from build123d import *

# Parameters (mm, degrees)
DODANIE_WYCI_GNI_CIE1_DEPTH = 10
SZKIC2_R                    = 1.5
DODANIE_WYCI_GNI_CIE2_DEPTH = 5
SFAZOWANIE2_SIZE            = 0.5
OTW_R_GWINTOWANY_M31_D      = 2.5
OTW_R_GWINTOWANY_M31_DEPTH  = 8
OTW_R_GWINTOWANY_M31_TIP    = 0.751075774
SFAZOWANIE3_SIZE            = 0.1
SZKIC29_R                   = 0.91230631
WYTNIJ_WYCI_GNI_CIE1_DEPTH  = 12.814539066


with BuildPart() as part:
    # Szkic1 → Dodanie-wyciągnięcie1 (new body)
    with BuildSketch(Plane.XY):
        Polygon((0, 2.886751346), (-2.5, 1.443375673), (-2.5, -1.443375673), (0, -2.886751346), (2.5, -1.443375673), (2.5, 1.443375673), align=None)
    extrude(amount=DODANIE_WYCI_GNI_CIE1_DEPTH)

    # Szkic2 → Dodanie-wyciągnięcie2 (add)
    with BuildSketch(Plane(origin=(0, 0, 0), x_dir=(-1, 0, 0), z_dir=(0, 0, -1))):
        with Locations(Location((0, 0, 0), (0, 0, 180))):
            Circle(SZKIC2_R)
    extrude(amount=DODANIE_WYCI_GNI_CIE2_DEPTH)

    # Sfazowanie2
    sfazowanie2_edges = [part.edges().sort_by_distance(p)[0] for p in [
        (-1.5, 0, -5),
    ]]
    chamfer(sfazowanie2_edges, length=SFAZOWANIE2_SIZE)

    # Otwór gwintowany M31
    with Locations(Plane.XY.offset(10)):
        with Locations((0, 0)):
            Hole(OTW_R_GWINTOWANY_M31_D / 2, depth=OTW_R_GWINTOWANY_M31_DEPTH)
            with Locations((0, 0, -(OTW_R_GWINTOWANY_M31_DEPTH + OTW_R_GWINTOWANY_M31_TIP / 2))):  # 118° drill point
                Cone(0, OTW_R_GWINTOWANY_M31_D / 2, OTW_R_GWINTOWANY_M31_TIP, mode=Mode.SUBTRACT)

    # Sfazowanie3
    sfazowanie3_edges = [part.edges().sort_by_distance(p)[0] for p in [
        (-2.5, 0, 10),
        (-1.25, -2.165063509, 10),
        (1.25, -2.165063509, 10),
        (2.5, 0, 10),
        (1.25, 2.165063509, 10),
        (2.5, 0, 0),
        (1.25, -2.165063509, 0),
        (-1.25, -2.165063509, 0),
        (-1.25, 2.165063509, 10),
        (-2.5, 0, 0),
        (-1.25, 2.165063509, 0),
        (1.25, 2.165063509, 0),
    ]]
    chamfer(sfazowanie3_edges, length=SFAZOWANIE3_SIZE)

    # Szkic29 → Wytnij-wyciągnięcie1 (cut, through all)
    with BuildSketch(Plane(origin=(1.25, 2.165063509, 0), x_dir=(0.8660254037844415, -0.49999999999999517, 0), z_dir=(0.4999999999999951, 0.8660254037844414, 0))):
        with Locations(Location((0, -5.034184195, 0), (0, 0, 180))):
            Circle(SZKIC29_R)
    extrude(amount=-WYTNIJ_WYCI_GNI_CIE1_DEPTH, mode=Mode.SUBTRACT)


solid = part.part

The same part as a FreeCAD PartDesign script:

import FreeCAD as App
import Part
import Sketcher
from FreeCAD import Vector
Q = App.Units.Quantity


def edges_at(feature, points):
    """Names of the edges that pass closest to the given points."""
    edges = feature.Shape.Edges
    near = lambda p: min(range(len(edges)), key=lambda i: edges[i].distToShape(Part.Vertex(*p))[0])
    return sorted({f"Edge{near(p) + 1}" for p in points})

doc = App.newDocument("Part")
params = doc.addObject("Spreadsheet::Sheet", "Params")
for row, (alias, value) in enumerate([
    ("pad1_length", "10 mm"),
    ("sketch2_diameter", "3 mm"),
    ("pad2_length", "5 mm"),
    ("chamfer_size", "0.5 mm"),
    ("sketch3_diameter", "2.5 mm"),
    ("hole_diameter", "2.5 mm"),
    ("hole_depth", "8 mm"),
    ("chamfer2_size", "0.1 mm"),
], start=1):
    params.set(f"A{row}", alias)
    params.set(f"B{row}", "=" + value)
    params.setAlias(f"B{row}", alias)

body = doc.addObject("PartDesign::Body", "Body")

# Sketch on XY plane
sketch1 = body.newObject("Sketcher::SketchObject", "Sketch")
sketch1.AttachmentSupport = (doc.getObject("XY_Plane"), [""])
sketch1.MapMode = "FlatFace"
sketch1.addGeometry(Part.LineSegment(Vector(0, 2.886751, 0), Vector(-2.5, 1.443376, 0)), False)
sketch1.addGeometry(Part.LineSegment(Vector(-2.5, 1.443376, 0), Vector(-2.5, -1.443376, 0)), False)
sketch1.addGeometry(Part.LineSegment(Vector(-2.5, -1.443376, 0), Vector(0, -2.886751, 0)), False)
sketch1.addGeometry(Part.LineSegment(Vector(0, -2.886751, 0), Vector(2.5, -1.443376, 0)), False)
sketch1.addGeometry(Part.LineSegment(Vector(2.5, -1.443376, 0), Vector(2.5, 1.443376, 0)), False)
sketch1.addGeometry(Part.LineSegment(Vector(2.5, 1.443376, 0), Vector(0, 2.886751, 0)), False)
sketch1.addConstraint(Sketcher.Constraint("Coincident", 0, 2, 1, 1))
sketch1.addConstraint(Sketcher.Constraint("Coincident", 1, 2, 2, 1))
sketch1.addConstraint(Sketcher.Constraint("Coincident", 2, 2, 3, 1))
sketch1.addConstraint(Sketcher.Constraint("Coincident", 3, 2, 4, 1))
sketch1.addConstraint(Sketcher.Constraint("Coincident", 4, 2, 5, 1))
sketch1.addConstraint(Sketcher.Constraint("Coincident", 5, 2, 0, 1))
sketch1.addConstraint(Sketcher.Constraint("Vertical", 1))
sketch1.addConstraint(Sketcher.Constraint("Vertical", 4))
sketch1.addConstraint(Sketcher.Constraint("Symmetric", 0, 2, 3, 2, -1, 1))
sketch1.addConstraint(Sketcher.Constraint("Symmetric", 2, 2, 5, 2, -1, 1))
sketch1.addConstraint(Sketcher.Constraint("PointOnObject", 2, 2, -2))
sketch1.addConstraint(Sketcher.Constraint("Parallel", 2, 5))
sketch1.addConstraint(Sketcher.Constraint("Horizontal", 1, 2, 3, 2))
sketch1.addConstraint(Sketcher.Constraint("Angle", 0, Q("-150 deg")))
sketch1.addConstraint(Sketcher.Constraint("DistanceX", 1, 2, 3, 2, 5.0))
sketch1.addConstraint(Sketcher.Constraint("DistanceY", 1, 2, 1, 1, 2.886751))
pad1 = body.newObject("PartDesign::Pad", "Pad")
pad1.Profile = sketch1
pad1.setExpression("Length", "Params.pad1_length")

# Sketch on XY plane
sketch2 = body.newObject("Sketcher::SketchObject", "Sketch001")
sketch2.AttachmentSupport = (doc.getObject("XY_Plane"), [""])
sketch2.MapMode = "FlatFace"
sketch2.addGeometry(Part.Circle(Vector(0, 0, 0), Vector(0, 0, 1), 1.5), False)
sketch2.addConstraint(Sketcher.Constraint("Coincident", 0, 3, -1, 1))
sketch2.addConstraint(Sketcher.Constraint("Diameter", 0, 3.0))
sketch2.setExpression("Constraints[1]", "Params.sketch2_diameter")
pad2 = body.newObject("PartDesign::Pad", "Pad001")
pad2.Profile = sketch2
pad2.setExpression("Length", "Params.pad2_length")
pad2.Reversed = True
doc.recompute()

chamfer = body.newObject("PartDesign::Chamfer", "Chamfer")
chamfer.Base = (pad2, edges_at(pad2, [(-1.5, 0, -5)]))
chamfer.setExpression("Size", "Params.chamfer_size")

# Sketch on XY plane
sketch3 = body.newObject("Sketcher::SketchObject", "Sketch002")
sketch3.AttachmentSupport = (doc.getObject("XY_Plane"), [""])
sketch3.MapMode = "FlatFace"
sketch3.AttachmentOffset = App.Placement(Vector(0, 0, 10), App.Rotation())
sketch3.addGeometry(Part.Circle(Vector(0, 0, 0), Vector(0, 0, 1), 1.25), False)
sketch3.addConstraint(Sketcher.Constraint("Coincident", 0, 3, -1, 1))
sketch3.addConstraint(Sketcher.Constraint("Diameter", 0, 2.5))
sketch3.setExpression("Constraints[1]", "Params.sketch3_diameter")
doc.recompute()
hole = body.newObject("PartDesign::Hole", "Hole")
hole.Profile = sketch3
hole.ThreadType = "None"
hole.setExpression("Diameter", "Params.hole_diameter")
hole.DepthType = "Dimension"
hole.setExpression("Depth", "Params.hole_depth")
hole.DrillPoint = "Angled"
hole.DrillPointAngle = 118
doc.recompute()

chamfer2 = body.newObject("PartDesign::Chamfer", "Chamfer001")
chamfer2.Base = (hole, edges_at(hole, [
    (-2.5, 0, 10),
    (-1.25, -2.165, 10),
    (1.25, -2.165, 10),
    (2.5, 0, 10),
    (1.25, 2.165, 10),
    (2.5, 0, 0),
    (1.25, -2.165, 0),
    (-1.25, -2.165, 0),
    (-1.25, 2.165, 10),
    (-2.5, 0, 0),
    (-1.25, 2.165, 0),
    (1.25, 2.165, 0),
]))
chamfer2.setExpression("Size", "Params.chamfer2_size")

# Sketch on an angled plane
sketch4 = body.newObject("Sketcher::SketchObject", "Sketch003")
sketch4.Placement = App.Placement(Vector(1.25, 2.165064, 0), App.Rotation(Vector(0.866025404, -0.5, 0), Vector(0, 0, -1), Vector(0.5, 0.866025404, 0), "ZXY"))
sketch4.addGeometry(Part.Circle(Vector(0, -5.034184, 0), Vector(0, 0, 1), 0.912306), False)
sketch4.addConstraint(Sketcher.Constraint("PointOnObject", 0, 3, -2))
sketch4.addConstraint(Sketcher.Constraint("Diameter", 0, 1.824613))
sketch4.addConstraint(Sketcher.Constraint("DistanceY", 0, 3, -1, 1, 5.034184))
pocket1 = body.newObject("PartDesign::Pocket", "Pocket")
pocket1.Profile = sketch4
pocket1.Type = "ThroughAll"

doc.recompute()
